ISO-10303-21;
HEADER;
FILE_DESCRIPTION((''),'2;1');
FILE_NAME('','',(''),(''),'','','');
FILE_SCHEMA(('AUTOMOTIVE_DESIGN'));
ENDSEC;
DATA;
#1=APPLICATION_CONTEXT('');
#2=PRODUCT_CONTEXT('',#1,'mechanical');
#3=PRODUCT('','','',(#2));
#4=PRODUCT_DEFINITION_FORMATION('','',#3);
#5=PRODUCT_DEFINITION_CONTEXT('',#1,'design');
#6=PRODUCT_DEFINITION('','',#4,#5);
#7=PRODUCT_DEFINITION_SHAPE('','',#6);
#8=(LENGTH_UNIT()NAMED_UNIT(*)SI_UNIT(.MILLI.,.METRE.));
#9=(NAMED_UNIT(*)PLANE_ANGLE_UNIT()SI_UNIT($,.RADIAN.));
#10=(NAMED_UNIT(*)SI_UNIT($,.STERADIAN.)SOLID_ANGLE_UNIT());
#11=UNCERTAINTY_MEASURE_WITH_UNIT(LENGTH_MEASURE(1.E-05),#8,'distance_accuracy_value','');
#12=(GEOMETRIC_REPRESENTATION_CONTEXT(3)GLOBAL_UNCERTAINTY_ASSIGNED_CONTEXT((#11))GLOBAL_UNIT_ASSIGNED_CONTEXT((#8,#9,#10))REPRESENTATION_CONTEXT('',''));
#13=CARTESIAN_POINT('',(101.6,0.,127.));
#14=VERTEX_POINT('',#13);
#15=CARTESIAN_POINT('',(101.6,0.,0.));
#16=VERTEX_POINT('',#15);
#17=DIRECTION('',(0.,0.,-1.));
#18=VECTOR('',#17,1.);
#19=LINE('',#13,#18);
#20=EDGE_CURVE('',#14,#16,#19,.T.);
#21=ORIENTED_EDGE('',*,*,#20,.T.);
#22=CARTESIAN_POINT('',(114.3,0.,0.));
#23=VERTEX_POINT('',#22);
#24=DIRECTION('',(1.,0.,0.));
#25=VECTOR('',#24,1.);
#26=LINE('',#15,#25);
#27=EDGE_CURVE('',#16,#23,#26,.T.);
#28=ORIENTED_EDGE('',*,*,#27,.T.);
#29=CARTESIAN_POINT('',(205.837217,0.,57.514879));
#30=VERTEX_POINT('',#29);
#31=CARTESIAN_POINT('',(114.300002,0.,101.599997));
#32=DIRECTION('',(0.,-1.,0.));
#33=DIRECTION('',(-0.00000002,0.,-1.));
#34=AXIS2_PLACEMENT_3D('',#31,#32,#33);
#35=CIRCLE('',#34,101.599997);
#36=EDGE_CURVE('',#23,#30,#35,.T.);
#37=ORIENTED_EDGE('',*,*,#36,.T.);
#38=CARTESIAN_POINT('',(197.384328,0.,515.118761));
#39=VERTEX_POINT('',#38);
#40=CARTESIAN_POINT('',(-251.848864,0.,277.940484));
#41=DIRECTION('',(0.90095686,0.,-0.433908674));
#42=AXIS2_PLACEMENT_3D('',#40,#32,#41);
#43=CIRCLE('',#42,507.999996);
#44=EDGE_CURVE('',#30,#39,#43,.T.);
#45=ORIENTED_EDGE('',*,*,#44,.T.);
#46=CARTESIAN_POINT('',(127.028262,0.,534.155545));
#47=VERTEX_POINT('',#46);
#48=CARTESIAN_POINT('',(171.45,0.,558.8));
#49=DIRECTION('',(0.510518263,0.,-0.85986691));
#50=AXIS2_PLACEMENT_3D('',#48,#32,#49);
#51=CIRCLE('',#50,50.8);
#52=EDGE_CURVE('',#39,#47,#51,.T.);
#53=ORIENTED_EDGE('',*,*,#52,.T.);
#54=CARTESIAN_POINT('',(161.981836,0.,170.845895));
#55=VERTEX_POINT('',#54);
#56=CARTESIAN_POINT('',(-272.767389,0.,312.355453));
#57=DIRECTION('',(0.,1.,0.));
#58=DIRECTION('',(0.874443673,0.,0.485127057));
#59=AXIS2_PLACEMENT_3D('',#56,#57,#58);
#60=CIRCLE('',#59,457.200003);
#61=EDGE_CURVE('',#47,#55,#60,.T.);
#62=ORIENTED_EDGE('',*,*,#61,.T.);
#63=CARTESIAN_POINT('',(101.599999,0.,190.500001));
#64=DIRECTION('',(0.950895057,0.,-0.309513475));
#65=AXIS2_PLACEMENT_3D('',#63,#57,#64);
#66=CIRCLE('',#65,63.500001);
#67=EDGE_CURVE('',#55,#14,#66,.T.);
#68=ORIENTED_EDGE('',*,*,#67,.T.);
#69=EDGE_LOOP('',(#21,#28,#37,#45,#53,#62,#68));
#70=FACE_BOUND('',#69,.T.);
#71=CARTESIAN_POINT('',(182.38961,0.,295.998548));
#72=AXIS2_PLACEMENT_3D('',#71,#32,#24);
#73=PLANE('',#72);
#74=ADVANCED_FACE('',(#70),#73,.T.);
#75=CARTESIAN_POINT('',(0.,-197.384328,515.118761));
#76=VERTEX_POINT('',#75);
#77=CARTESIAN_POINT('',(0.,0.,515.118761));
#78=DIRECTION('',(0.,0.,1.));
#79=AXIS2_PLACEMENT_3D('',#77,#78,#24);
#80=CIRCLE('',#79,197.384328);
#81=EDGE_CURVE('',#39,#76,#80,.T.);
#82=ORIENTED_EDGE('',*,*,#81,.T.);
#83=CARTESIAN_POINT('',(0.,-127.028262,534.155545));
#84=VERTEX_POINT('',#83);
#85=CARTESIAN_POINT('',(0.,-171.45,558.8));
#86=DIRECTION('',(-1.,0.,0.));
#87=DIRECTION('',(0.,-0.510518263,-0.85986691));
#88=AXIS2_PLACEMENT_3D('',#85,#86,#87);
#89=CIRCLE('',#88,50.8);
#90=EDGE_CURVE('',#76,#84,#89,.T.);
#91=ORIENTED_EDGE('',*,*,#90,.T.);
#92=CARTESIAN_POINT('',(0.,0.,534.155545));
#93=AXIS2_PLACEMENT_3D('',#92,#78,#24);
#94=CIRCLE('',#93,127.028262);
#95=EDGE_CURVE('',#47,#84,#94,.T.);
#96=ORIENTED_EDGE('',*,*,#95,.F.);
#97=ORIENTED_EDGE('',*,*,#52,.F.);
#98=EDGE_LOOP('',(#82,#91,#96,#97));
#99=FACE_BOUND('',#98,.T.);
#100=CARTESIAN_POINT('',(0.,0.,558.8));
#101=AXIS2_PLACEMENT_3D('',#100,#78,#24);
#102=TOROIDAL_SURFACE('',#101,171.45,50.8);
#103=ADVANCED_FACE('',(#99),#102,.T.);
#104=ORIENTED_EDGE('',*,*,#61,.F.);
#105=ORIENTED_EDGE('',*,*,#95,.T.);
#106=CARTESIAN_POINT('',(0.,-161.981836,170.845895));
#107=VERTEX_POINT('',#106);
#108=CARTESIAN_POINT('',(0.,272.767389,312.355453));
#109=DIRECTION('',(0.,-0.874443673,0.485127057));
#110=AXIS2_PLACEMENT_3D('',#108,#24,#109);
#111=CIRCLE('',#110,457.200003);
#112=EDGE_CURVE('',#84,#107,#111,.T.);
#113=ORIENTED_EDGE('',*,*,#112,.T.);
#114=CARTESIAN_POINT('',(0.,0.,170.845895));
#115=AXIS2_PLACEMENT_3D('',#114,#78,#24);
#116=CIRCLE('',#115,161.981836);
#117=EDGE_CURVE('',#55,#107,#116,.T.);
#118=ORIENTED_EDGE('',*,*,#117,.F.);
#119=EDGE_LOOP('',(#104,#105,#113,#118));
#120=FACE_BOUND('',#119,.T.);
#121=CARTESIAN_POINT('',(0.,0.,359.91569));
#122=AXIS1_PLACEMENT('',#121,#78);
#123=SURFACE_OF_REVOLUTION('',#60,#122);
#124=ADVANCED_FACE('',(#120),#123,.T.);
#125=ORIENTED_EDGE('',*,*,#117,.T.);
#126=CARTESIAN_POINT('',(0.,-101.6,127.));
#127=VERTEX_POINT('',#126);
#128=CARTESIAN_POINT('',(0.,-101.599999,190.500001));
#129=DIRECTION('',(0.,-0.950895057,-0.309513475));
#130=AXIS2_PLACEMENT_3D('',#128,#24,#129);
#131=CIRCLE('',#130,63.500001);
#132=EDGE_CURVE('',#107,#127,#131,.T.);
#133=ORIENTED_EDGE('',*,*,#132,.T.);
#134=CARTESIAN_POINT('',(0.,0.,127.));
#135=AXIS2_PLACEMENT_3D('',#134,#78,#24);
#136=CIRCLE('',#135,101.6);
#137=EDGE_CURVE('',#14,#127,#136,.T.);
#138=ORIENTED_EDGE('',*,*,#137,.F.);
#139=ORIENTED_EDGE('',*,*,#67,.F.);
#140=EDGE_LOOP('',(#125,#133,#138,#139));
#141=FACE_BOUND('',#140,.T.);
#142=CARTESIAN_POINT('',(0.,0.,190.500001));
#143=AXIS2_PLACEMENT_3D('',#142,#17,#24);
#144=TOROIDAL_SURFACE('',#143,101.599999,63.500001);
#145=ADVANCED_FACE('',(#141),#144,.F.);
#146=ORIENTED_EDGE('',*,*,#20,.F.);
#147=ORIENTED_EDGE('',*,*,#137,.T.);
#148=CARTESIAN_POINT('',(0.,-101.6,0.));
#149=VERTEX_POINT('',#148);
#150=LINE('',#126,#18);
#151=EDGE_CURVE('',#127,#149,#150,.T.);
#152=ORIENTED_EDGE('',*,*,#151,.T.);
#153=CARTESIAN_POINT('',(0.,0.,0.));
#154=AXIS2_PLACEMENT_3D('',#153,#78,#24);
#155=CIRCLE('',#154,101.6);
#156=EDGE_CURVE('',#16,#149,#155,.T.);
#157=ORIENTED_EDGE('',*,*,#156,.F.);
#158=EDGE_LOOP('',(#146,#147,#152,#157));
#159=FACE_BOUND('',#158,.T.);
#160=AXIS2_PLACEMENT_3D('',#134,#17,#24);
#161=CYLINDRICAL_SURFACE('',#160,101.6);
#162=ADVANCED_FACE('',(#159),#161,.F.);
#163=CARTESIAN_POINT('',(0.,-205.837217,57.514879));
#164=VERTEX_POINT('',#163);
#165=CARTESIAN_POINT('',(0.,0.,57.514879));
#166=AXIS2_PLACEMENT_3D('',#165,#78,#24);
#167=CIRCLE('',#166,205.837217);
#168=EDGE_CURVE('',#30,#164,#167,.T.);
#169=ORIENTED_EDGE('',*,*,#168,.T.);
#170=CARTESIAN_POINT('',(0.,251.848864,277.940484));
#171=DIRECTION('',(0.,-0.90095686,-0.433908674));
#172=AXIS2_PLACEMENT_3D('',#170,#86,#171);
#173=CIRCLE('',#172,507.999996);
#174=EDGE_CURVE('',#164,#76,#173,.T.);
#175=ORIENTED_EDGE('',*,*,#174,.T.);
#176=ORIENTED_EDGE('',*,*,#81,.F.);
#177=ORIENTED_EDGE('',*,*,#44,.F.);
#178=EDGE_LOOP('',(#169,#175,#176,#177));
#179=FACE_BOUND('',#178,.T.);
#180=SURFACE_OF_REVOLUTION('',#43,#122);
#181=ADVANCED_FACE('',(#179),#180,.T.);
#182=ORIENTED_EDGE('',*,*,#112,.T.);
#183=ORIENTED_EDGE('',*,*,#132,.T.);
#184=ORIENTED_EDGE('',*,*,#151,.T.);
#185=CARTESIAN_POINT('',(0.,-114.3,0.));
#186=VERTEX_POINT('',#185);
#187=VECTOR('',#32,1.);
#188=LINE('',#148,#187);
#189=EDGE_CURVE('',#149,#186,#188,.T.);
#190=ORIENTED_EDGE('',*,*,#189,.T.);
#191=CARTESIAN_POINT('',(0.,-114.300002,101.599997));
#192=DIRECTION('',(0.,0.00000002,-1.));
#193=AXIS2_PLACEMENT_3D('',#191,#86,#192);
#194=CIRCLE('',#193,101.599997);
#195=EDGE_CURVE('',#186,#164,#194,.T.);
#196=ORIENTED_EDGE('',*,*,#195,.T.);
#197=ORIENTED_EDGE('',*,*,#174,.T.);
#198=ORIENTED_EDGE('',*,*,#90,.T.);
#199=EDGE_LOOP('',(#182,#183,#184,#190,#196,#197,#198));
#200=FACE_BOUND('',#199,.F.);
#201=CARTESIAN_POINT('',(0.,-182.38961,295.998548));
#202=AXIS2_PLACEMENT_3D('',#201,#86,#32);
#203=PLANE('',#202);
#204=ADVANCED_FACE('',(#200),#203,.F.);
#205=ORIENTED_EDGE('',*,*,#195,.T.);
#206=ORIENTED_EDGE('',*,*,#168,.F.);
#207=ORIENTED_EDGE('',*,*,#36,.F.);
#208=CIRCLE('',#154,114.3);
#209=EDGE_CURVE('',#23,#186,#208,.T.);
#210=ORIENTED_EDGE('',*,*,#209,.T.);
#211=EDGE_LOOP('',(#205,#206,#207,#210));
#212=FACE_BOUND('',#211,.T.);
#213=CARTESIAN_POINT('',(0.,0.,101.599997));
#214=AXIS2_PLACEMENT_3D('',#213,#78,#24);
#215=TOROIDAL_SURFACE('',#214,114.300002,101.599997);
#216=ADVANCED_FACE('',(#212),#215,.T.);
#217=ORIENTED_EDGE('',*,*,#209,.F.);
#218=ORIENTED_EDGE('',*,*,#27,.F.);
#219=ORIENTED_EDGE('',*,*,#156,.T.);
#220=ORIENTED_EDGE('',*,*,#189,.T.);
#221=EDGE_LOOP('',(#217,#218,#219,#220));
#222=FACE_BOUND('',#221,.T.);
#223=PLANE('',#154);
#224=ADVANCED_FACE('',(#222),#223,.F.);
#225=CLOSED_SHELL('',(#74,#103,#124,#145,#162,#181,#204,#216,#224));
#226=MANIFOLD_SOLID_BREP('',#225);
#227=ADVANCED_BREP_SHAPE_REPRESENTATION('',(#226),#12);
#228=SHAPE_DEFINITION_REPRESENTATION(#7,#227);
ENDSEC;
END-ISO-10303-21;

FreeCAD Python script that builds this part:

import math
import FreeCAD as App
import Part
import Sketcher
Q = App.Units.Quantity

doc = App.newDocument("Part")
body = doc.addObject("PartDesign::Body", "Body")

# Sketch on XZ plane
sketch1 = body.newObject("Sketcher::SketchObject", "Sketch")
sketch1.AttachmentSupport = (doc.getObject("XZ_Plane"), [""])
sketch1.MapMode = "FlatFace"
sketch1.addGeometry([
    Part.ArcOfCircle(Part.Circle(App.Vector(102, 191, 0), App.Vector(0, 0, 1), 64), math.radians(-90), math.radians(-18)),  # 0
    Part.LineSegment(App.Vector(102, 127, 0), App.Vector(102, 0, 0)),  # 1
    Part.LineSegment(App.Vector(102, 0, 0), App.Vector(114, 0, 0)),  # 2
    Part.ArcOfCircle(Part.Circle(App.Vector(114, 102, 0), App.Vector(0, 0, 1), 102), math.radians(-90), math.radians(-26)),  # 3
    Part.ArcOfCircle(Part.Circle(App.Vector(-252, 278, 0), App.Vector(0, 0, 1), 508), math.radians(-26), math.radians(28)),  # 4
    Part.ArcOfCircle(Part.Circle(App.Vector(171, 559, 0), App.Vector(0, 0, 1), 51), math.radians(-59), math.radians(209)),  # 5
    Part.ArcOfCircle(Part.Circle(App.Vector(-273, 312, 0), App.Vector(0, 0, 1), 457), math.radians(-18), math.radians(29)),  # 6
], False)
sketch1.addConstraint([
    Sketcher.Constraint("Coincident", 0, 1, 1, 1),
    Sketcher.Constraint("Coincident", 1, 2, 2, 1),
    Sketcher.Constraint("Tangent", 2, 2, 3, 1),
    Sketcher.Constraint("Tangent", 3, 2, 4, 1),
    Sketcher.Constraint("Coincident", 4, 2, 5, 1),
    Sketcher.Constraint("Tangent", 5, 2, 6, 2),
    Sketcher.Constraint("Tangent", 6, 1, 0, 2),
    Sketcher.Constraint("Vertical", 1),
    Sketcher.Constraint("Horizontal", 2),
    Sketcher.Constraint("PointOnObject", 1, 2, -1),
    Sketcher.Constraint("Radius", 3, Q("3.9999999 in")),
    Sketcher.Constraint("Radius", 4, Q("19.9999999 in")),
    Sketcher.Constraint("Radius", 5, Q("2 in")),
    Sketcher.Constraint("Radius", 6, Q("18.0000001 in")),
    Sketcher.Constraint("Radius", 0, Q("2.5 in")),
    Sketcher.Constraint("DistanceY", 1, 2, 1, 1, Q("5 in")),
    Sketcher.Constraint("DistanceX", 2, 1, 2, 2, Q("0.5 in")),
    Sketcher.Constraint("DistanceX", -1, 1, 0, 3, Q("4 in")),
    Sketcher.Constraint("DistanceY", -1, 1, 5, 3, Q("22 in")),
    Sketcher.Constraint("DistanceX", -1, 1, 0, 1, Q("4 in")),
    Sketcher.Constraint("DistanceX", -1, 1, 5, 3, Q("6.75 in")),
    Sketcher.Constraint("DistanceY", -1, 1, 3, 2, Q("57.514879 mm")),
])
revolution = body.newObject("PartDesign::Revolution", "Revolution")
revolution.Profile = sketch1
revolution.ReferenceAxis = (sketch1, ["V_Axis"])
revolution.Angle = 270

doc.recompute()
